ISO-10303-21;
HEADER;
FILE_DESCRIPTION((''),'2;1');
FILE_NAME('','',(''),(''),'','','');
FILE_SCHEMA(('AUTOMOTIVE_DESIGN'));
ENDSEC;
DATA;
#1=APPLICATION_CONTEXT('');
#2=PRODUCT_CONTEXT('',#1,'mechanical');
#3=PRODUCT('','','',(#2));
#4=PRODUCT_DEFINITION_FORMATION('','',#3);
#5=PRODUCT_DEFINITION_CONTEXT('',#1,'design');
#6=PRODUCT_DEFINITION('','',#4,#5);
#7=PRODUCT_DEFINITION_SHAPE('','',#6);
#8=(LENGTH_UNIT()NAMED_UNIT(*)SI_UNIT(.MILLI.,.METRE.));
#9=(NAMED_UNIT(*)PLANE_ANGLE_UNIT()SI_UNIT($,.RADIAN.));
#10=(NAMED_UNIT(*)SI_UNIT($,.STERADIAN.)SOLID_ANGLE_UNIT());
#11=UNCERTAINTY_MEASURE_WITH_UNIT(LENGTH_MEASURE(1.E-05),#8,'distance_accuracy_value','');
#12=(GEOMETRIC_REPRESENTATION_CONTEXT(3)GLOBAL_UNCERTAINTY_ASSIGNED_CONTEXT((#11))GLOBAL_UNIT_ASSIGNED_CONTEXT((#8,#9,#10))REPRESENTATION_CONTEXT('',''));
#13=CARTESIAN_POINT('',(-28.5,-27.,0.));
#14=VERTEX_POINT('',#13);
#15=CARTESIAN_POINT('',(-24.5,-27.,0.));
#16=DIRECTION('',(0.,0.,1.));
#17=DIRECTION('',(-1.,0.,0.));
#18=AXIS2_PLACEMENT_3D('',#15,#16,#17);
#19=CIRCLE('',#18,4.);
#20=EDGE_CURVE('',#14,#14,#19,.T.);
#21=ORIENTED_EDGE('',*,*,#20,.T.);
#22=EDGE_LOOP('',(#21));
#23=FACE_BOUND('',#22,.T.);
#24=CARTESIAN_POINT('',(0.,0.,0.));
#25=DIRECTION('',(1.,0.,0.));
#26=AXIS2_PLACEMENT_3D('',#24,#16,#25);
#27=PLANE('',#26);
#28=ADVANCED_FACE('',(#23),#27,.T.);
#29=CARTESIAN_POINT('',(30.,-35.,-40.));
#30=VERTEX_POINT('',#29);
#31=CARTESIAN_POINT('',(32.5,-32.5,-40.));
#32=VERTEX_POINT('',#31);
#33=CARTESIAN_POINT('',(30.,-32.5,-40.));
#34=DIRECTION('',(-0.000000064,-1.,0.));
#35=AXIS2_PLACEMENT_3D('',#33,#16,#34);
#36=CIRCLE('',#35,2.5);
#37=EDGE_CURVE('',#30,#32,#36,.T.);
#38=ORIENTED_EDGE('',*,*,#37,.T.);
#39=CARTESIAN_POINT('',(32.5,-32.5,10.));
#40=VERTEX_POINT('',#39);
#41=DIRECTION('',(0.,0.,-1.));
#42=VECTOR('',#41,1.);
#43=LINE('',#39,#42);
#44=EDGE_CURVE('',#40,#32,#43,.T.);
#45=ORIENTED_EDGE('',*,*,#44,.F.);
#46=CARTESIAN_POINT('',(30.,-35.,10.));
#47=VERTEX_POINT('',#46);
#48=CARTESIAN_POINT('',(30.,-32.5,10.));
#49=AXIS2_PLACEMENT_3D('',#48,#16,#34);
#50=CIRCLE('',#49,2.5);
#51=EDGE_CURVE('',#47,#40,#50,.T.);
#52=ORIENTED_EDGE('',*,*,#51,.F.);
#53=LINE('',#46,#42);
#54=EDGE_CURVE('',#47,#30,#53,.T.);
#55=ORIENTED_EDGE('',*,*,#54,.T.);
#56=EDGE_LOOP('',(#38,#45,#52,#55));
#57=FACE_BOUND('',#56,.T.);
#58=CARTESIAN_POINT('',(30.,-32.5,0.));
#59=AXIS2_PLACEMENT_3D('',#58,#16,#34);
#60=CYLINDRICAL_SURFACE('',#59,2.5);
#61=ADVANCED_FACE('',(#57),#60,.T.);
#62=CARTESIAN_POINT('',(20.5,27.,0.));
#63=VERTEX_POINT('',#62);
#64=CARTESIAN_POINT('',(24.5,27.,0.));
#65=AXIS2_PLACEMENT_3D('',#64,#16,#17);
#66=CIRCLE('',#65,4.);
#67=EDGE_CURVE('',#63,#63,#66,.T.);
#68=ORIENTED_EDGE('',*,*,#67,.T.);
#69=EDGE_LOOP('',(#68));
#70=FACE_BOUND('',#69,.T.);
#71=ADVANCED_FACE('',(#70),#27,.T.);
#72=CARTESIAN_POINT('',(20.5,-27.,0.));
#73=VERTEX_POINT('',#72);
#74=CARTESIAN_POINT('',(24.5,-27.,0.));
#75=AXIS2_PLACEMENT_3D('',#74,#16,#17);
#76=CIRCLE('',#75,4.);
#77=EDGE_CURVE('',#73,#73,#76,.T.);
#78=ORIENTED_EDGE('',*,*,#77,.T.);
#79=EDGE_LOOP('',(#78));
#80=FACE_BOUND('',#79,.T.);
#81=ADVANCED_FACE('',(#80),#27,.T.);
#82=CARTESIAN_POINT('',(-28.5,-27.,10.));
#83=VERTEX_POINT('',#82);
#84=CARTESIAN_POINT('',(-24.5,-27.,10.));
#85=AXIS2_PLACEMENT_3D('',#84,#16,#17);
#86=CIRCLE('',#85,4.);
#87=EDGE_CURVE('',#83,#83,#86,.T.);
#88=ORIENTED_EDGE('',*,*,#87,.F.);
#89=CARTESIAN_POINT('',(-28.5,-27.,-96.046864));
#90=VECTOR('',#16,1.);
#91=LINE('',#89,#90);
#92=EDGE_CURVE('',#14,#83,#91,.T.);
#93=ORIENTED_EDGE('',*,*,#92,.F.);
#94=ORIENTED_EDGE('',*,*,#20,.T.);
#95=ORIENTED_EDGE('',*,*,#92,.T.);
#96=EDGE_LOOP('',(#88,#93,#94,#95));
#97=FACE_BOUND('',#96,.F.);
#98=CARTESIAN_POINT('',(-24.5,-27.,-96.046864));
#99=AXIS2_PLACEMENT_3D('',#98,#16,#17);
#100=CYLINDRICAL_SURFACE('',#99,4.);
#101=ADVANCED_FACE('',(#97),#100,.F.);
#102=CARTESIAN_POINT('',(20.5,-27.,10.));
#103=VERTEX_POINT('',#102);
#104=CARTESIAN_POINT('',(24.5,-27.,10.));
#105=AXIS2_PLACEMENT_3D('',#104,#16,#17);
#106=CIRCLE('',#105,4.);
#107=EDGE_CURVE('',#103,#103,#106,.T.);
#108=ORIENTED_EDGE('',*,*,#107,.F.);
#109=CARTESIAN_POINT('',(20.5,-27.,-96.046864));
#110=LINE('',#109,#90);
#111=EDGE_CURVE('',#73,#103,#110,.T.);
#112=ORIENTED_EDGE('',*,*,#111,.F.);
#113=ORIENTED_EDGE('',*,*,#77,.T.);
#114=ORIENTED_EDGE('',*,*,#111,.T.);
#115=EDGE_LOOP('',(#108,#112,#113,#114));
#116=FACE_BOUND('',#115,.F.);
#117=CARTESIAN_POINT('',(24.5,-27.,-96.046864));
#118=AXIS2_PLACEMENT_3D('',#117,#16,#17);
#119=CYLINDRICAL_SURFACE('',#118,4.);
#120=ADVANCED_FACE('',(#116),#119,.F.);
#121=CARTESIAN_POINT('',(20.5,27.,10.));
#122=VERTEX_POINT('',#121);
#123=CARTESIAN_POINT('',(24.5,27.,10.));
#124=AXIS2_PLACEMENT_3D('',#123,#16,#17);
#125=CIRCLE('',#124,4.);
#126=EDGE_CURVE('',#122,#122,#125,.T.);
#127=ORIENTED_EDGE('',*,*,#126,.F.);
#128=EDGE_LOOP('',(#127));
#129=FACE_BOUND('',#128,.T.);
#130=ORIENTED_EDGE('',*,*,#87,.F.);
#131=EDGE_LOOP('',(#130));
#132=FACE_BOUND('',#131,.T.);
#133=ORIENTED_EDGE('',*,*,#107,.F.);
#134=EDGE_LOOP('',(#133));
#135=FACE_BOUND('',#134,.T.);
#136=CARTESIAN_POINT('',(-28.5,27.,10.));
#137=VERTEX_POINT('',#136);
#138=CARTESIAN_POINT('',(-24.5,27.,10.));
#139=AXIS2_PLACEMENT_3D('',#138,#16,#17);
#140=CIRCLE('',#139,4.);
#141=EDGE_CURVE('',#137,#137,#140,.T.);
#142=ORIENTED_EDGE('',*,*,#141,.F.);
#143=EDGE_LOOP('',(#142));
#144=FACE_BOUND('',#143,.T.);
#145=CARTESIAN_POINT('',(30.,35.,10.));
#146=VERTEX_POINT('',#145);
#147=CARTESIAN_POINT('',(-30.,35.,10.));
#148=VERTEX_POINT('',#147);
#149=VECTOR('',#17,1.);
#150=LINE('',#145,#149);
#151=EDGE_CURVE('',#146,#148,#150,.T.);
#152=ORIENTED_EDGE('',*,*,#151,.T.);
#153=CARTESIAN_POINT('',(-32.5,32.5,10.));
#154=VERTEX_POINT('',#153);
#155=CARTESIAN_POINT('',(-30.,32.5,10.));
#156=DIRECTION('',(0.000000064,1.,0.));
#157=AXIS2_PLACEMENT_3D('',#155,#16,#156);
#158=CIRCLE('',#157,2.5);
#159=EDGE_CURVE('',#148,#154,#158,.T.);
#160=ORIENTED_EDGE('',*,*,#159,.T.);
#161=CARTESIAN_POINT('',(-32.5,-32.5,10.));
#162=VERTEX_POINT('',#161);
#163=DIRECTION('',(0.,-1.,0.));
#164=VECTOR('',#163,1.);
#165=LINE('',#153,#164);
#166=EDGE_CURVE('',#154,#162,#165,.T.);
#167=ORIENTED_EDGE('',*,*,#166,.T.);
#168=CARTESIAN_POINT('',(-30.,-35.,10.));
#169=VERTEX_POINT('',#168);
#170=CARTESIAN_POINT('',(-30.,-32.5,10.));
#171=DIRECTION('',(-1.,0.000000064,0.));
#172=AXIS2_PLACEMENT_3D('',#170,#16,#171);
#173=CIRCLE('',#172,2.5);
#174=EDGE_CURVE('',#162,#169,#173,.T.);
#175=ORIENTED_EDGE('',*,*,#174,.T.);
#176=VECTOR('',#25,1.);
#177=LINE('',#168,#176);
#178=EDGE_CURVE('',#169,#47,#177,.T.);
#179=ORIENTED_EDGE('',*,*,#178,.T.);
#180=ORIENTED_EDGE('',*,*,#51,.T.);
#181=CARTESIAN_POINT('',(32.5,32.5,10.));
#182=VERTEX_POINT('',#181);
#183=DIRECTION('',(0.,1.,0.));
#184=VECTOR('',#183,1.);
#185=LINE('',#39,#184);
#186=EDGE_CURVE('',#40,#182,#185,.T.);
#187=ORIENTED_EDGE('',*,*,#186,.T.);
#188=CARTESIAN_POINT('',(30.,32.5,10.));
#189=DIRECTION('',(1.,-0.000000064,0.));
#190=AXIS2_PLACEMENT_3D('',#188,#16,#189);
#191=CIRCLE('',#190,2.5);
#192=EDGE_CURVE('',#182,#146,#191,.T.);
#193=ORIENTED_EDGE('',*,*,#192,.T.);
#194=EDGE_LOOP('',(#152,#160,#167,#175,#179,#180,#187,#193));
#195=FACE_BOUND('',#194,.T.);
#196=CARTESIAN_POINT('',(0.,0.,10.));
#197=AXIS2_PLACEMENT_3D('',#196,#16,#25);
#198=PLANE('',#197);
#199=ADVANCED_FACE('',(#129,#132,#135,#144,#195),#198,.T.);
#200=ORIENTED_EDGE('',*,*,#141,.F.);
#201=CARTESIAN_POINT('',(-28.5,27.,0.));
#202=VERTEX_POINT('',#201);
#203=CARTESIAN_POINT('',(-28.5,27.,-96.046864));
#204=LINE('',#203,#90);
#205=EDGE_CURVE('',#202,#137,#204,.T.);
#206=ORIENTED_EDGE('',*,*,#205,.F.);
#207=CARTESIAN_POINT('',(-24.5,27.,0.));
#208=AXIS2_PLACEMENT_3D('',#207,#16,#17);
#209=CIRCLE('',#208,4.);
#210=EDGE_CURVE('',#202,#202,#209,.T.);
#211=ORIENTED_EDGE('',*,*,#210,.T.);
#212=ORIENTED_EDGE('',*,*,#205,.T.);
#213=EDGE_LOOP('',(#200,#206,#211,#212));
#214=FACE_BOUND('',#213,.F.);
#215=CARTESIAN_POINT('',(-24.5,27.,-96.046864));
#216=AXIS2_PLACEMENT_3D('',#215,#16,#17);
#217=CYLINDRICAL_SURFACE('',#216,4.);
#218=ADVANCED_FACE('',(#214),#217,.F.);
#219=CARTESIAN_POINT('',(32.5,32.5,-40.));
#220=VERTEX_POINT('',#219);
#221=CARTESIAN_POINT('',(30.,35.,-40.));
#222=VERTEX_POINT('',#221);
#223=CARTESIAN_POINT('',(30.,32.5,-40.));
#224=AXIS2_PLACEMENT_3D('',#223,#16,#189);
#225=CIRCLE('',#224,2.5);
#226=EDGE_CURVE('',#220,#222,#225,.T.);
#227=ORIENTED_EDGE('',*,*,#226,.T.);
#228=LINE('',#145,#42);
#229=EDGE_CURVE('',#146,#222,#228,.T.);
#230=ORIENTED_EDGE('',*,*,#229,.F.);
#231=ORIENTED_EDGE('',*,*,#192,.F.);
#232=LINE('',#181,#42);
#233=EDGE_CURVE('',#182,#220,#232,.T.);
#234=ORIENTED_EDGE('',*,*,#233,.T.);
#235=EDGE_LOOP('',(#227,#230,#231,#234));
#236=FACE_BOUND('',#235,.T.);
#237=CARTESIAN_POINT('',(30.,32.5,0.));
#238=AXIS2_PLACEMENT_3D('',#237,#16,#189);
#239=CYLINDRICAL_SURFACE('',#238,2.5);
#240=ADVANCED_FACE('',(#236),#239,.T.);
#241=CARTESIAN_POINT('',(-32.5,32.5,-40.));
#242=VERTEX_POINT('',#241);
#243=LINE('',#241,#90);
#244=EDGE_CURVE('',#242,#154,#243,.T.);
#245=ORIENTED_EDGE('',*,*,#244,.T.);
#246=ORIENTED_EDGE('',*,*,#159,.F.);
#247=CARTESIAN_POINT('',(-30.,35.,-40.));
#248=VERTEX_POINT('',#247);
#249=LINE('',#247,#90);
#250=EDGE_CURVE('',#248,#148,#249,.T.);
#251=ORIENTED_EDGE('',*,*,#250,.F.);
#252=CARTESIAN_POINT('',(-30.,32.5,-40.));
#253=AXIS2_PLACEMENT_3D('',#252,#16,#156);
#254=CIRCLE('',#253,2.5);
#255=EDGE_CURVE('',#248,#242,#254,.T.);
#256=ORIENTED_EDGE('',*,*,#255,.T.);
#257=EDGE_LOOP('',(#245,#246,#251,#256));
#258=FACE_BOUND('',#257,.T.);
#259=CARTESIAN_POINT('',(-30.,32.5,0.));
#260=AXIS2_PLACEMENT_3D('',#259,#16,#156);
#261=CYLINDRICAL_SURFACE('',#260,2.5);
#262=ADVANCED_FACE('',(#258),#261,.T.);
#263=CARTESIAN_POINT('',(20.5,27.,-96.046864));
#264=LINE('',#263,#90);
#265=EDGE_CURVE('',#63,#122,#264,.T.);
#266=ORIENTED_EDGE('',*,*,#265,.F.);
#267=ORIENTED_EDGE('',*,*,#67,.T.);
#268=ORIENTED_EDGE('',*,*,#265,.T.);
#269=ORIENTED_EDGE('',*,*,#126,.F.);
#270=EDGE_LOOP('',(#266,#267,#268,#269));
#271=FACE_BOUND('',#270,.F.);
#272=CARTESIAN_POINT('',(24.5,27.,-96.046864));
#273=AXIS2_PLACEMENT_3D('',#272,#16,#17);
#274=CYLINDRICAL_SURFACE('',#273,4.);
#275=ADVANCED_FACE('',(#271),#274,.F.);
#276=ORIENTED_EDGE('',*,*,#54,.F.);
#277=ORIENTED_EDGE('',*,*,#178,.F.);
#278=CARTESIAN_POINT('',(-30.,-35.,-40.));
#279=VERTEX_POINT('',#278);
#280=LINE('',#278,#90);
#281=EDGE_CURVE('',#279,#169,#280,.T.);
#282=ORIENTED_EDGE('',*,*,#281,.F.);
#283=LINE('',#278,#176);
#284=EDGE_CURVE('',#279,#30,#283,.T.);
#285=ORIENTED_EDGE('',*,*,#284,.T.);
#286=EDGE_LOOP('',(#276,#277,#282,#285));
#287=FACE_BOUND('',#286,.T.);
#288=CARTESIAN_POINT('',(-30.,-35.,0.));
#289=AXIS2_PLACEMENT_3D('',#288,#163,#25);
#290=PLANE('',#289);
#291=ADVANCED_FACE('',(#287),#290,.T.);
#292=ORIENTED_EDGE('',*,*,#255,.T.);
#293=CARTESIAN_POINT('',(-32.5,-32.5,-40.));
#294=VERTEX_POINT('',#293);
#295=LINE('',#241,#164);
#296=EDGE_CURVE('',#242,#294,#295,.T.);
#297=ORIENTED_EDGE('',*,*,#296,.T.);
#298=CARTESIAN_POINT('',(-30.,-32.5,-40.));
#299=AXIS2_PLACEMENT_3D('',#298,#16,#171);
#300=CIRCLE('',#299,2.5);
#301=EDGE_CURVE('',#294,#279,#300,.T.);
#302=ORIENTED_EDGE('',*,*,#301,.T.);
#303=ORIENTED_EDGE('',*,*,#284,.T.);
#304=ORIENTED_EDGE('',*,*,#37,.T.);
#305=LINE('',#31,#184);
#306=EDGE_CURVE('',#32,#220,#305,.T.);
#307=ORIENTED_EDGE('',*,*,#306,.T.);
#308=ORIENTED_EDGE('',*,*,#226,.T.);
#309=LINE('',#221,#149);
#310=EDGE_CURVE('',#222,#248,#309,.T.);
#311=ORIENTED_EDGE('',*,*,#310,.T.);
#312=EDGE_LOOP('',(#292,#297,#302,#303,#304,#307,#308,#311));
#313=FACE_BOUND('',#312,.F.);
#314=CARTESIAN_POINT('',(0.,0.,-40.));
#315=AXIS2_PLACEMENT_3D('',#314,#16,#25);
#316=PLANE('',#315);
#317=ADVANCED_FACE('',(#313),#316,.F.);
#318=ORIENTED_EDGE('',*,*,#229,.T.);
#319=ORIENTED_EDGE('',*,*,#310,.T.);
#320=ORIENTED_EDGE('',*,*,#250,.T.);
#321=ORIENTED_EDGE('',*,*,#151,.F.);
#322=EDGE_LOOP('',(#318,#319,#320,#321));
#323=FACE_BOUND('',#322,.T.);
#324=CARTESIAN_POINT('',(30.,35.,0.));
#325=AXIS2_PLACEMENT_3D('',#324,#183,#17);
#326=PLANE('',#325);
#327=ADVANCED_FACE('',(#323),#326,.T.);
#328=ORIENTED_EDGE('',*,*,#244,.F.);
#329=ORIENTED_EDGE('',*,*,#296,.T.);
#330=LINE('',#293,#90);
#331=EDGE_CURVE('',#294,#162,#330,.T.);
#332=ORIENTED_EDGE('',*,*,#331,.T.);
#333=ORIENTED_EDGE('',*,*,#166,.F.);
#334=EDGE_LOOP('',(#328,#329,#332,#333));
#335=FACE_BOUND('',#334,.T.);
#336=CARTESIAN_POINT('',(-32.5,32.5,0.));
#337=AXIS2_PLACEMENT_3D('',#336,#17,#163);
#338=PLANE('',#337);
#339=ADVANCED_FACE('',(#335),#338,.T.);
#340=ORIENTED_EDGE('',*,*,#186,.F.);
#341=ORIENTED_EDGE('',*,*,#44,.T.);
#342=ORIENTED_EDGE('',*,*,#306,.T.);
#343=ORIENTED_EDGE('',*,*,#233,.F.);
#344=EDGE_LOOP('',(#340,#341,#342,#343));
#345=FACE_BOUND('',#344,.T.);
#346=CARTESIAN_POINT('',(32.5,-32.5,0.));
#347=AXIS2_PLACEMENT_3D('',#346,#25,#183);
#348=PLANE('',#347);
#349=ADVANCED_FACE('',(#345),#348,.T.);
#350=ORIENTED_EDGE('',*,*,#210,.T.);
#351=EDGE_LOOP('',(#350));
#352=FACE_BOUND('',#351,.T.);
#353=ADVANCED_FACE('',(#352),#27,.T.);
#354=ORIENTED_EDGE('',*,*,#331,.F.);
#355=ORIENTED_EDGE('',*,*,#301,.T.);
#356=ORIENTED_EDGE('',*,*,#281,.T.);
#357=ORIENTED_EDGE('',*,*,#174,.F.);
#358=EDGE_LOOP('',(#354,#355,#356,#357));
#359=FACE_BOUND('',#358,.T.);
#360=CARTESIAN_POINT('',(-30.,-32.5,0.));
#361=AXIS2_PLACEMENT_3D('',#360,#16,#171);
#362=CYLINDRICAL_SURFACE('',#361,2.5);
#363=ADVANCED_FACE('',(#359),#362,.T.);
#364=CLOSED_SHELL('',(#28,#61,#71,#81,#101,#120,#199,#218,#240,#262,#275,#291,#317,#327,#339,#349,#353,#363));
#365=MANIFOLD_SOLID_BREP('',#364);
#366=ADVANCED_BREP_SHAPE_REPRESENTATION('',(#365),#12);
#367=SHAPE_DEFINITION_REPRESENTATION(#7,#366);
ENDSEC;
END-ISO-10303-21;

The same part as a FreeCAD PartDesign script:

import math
import FreeCAD as App
import Part
import Sketcher
from FreeCAD import Vector
Q = App.Units.Quantity

doc = App.newDocument("Part")
params = doc.addObject("Spreadsheet::Sheet", "Params")
for row, (alias, value) in enumerate([
    ("sketch1_radius", "2.5 mm"),
    ("sketch1_width", "60 mm"),
    ("sketch1_height", "65 mm"),
    ("pad1_length", "10 mm"),
    ("sketch2_diameter", "8 mm"),
    ("hole_diameter", "8 mm"),
    ("sketch3_diameter", "8 mm"),
    ("hole2_diameter", "8 mm"),
    ("sketch4_diameter", "8 mm"),
    ("hole3_diameter", "8 mm"),
    ("sketch5_diameter", "8 mm"),
    ("hole4_diameter", "8 mm"),
    ("sketch6_radius", "2.5 mm"),
    ("sketch6_width", "60 mm"),
    ("sketch6_height", "65 mm"),
    ("pad2_length", "40 mm"),
], start=1):
    params.set(f"A{row}", alias)
    params.set(f"B{row}", "=" + value)
    params.setAlias(f"B{row}", alias)

body = doc.addObject("PartDesign::Body", "Body")

sketch1 = body.newObject("Sketcher::SketchObject", "Sketch")
sketch1.AttachmentSupport = (doc.getObject("XY_Plane"), [""])
sketch1.MapMode = "FlatFace"
sketch1.addGeometry(Part.LineSegment(Vector(30, 35, 0), Vector(-30, 35, 0)), False)
sketch1.addGeometry(Part.ArcOfCircle(Part.Circle(Vector(-30, 32.5, 0), Vector(0, 0, 1), 2.5), math.radians(90), math.radians(180)), False)
sketch1.addGeometry(Part.LineSegment(Vector(-32.5, 32.5, 0), Vector(-32.5, -32.5, 0)), False)
sketch1.addGeometry(Part.ArcOfCircle(Part.Circle(Vector(-30, -32.5, 0), Vector(0, 0, 1), 2.5), math.radians(180), math.radians(270)), False)
sketch1.addGeometry(Part.LineSegment(Vector(-30, -35, 0), Vector(30, -35, 0)), False)
sketch1.addGeometry(Part.ArcOfCircle(Part.Circle(Vector(30, -32.5, 0), Vector(0, 0, 1), 2.5), math.radians(-90), math.radians(0)), False)
sketch1.addGeometry(Part.LineSegment(Vector(32.5, -32.5, 0), Vector(32.5, 32.5, 0)), False)
sketch1.addGeometry(Part.ArcOfCircle(Part.Circle(Vector(30, 32.5, 0), Vector(0, 0, 1), 2.5), math.radians(0), math.radians(90)), False)
sketch1.addConstraint(Sketcher.Constraint("Tangent", 0, 2, 1, 1))
sketch1.addConstraint(Sketcher.Constraint("Tangent", 1, 2, 2, 1))
sketch1.addConstraint(Sketcher.Constraint("Tangent", 2, 2, 3, 1))
sketch1.addConstraint(Sketcher.Constraint("Tangent", 3, 2, 4, 1))
sketch1.addConstraint(Sketcher.Constraint("Tangent", 4, 2, 5, 1))
sketch1.addConstraint(Sketcher.Constraint("Tangent", 5, 2, 6, 1))
sketch1.addConstraint(Sketcher.Constraint("Tangent", 6, 2, 7, 1))
sketch1.addConstraint(Sketcher.Constraint("Tangent", 7, 2, 0, 1))
sketch1.addConstraint(Sketcher.Constraint("Horizontal", 0))
sketch1.addConstraint(Sketcher.Constraint("Vertical", 2))
sketch1.addConstraint(Sketcher.Constraint("Horizontal", 4))
sketch1.addConstraint(Sketcher.Constraint("Vertical", 6))
sketch1.addConstraint(Sketcher.Constraint("Equal", 1, 3))
sketch1.addConstraint(Sketcher.Constraint("Equal", 3, 5))
sketch1.addConstraint(Sketcher.Constraint("Equal", 5, 7))
sketch1.addConstraint(Sketcher.Constraint("Symmetric", 1, 3, 5, 3, -1, 1))
sketch1.addConstraint(Sketcher.Constraint("Radius", 1, Q("2.5 mm")))
sketch1.addConstraint(Sketcher.Constraint("DistanceX", 0, 2, 0, 1, Q("60 mm")))
sketch1.addConstraint(Sketcher.Constraint("DistanceY", 2, 2, 2, 1, Q("65 mm")))
sketch1.setExpression("Constraints[16]", "Params.sketch1_radius")
sketch1.setExpression("Constraints[17]", "Params.sketch1_width")
sketch1.setExpression("Constraints[18]", "Params.sketch1_height")
pad1 = body.newObject("PartDesign::Pad", "Pad")
pad1.Profile = sketch1
pad1.setExpression("Length", "Params.pad1_length")

sketch2 = body.newObject("Sketcher::SketchObject", "Sketch001")
sketch2.AttachmentSupport = (doc.getObject("XY_Plane"), [""])
sketch2.MapMode = "FlatFace"
sketch2.addGeometry(Part.Circle(Vector(24.5, -27, 0), Vector(0, 0, 1), 4), False)
sketch2.addConstraint(Sketcher.Constraint("Diameter", 0, Q("8 mm")))
sketch2.addConstraint(Sketcher.Constraint("DistanceY", 0, 3, -1, 1, Q("27 mm")))
sketch2.addConstraint(Sketcher.Constraint("DistanceX", -1, 1, 0, 3, Q("24.5 mm")))
sketch2.setExpression("Constraints[0]", "Params.sketch2_diameter")
doc.recompute()
hole = body.newObject("PartDesign::Hole", "Hole")
hole.Profile = sketch2
hole.ThreadType = "None"
hole.setExpression("Diameter", "Params.hole_diameter")
hole.DepthType = "ThroughAll"
hole.Reversed = True

sketch3 = body.newObject("Sketcher::SketchObject", "Sketch002")
sketch3.AttachmentSupport = (doc.getObject("XY_Plane"), [""])
sketch3.MapMode = "FlatFace"
sketch3.addGeometry(Part.Circle(Vector(-24.5, -27, 0), Vector(0, 0, 1), 4), False)
sketch3.addConstraint(Sketcher.Constraint("Diameter", 0, Q("8 mm")))
sketch3.addConstraint(Sketcher.Constraint("DistanceY", 0, 3, -1, 1, Q("27 mm")))
sketch3.addConstraint(Sketcher.Constraint("DistanceX", 0, 3, -1, 1, Q("24.5 mm")))
sketch3.setExpression("Constraints[0]", "Params.sketch3_diameter")
doc.recompute()
hole2 = body.newObject("PartDesign::Hole", "Hole001")
hole2.Profile = sketch3
hole2.ThreadType = "None"
hole2.setExpression("Diameter", "Params.hole2_diameter")
hole2.DepthType = "ThroughAll"
hole2.Reversed = True

sketch4 = body.newObject("Sketcher::SketchObject", "Sketch003")
sketch4.AttachmentSupport = (doc.getObject("XY_Plane"), [""])
sketch4.MapMode = "FlatFace"
sketch4.addGeometry(Part.Circle(Vector(24.5, 27, 0), Vector(0, 0, 1), 4), False)
sketch4.addConstraint(Sketcher.Constraint("Diameter", 0, Q("8 mm")))
sketch4.addConstraint(Sketcher.Constraint("DistanceY", -1, 1, 0, 3, Q("27 mm")))
sketch4.addConstraint(Sketcher.Constraint("DistanceX", -1, 1, 0, 3, Q("24.5 mm")))
sketch4.setExpression("Constraints[0]", "Params.sketch4_diameter")
doc.recompute()
hole3 = body.newObject("PartDesign::Hole", "Hole002")
hole3.Profile = sketch4
hole3.ThreadType = "None"
hole3.setExpression("Diameter", "Params.hole3_diameter")
hole3.DepthType = "ThroughAll"
hole3.Reversed = True

sketch5 = body.newObject("Sketcher::SketchObject", "Sketch004")
sketch5.AttachmentSupport = (doc.getObject("XY_Plane"), [""])
sketch5.MapMode = "FlatFace"
sketch5.addGeometry(Part.Circle(Vector(-24.5, 27, 0), Vector(0, 0, 1), 4), False)
sketch5.addConstraint(Sketcher.Constraint("Diameter", 0, Q("8 mm")))
sketch5.addConstraint(Sketcher.Constraint("DistanceY", -1, 1, 0, 3, Q("27 mm")))
sketch5.addConstraint(Sketcher.Constraint("DistanceX", 0, 3, -1, 1, Q("24.5 mm")))
sketch5.setExpression("Constraints[0]", "Params.sketch5_diameter")
doc.recompute()
hole4 = body.newObject("PartDesign::Hole", "Hole003")
hole4.Profile = sketch5
hole4.ThreadType = "None"
hole4.setExpression("Diameter", "Params.hole4_diameter")
hole4.DepthType = "ThroughAll"
hole4.Reversed = True

sketch6 = body.newObject("Sketcher::SketchObject", "Sketch005")
sketch6.AttachmentSupport = (doc.getObject("XY_Plane"), [""])
sketch6.MapMode = "FlatFace"
sketch6.addGeometry(Part.LineSegment(Vector(30, 35, 0), Vector(-30, 35, 0)), False)
sketch6.addGeometry(Part.ArcOfCircle(Part.Circle(Vector(-30, 32.5, 0), Vector(0, 0, 1), 2.5), math.radians(90), math.radians(180)), False)
sketch6.addGeometry(Part.LineSegment(Vector(-32.5, 32.5, 0), Vector(-32.5, -32.5, 0)), False)
sketch6.addGeometry(Part.ArcOfCircle(Part.Circle(Vector(-30, -32.5, 0), Vector(0, 0, 1), 2.5), math.radians(180), math.radians(270)), False)
sketch6.addGeometry(Part.LineSegment(Vector(-30, -35, 0), Vector(30, -35, 0)), False)
sketch6.addGeometry(Part.ArcOfCircle(Part.Circle(Vector(30, -32.5, 0), Vector(0, 0, 1), 2.5), math.radians(-90), math.radians(0)), False)
sketch6.addGeometry(Part.LineSegment(Vector(32.5, -32.5, 0), Vector(32.5, 32.5, 0)), False)
sketch6.addGeometry(Part.ArcOfCircle(Part.Circle(Vector(30, 32.5, 0), Vector(0, 0, 1), 2.5), math.radians(0), math.radians(90)), False)
sketch6.addConstraint(Sketcher.Constraint("Tangent", 0, 2, 1, 1))
sketch6.addConstraint(Sketcher.Constraint("Tangent", 1, 2, 2, 1))
sketch6.addConstraint(Sketcher.Constraint("Tangent", 2, 2, 3, 1))
sketch6.addConstraint(Sketcher.Constraint("Tangent", 3, 2, 4, 1))
sketch6.addConstraint(Sketcher.Constraint("Tangent", 4, 2, 5, 1))
sketch6.addConstraint(Sketcher.Constraint("Tangent", 5, 2, 6, 1))
sketch6.addConstraint(Sketcher.Constraint("Tangent", 6, 2, 7, 1))
sketch6.addConstraint(Sketcher.Constraint("Tangent", 7, 2, 0, 1))
sketch6.addConstraint(Sketcher.Constraint("Horizontal", 0))
sketch6.addConstraint(Sketcher.Constraint("Vertical", 2))
sketch6.addConstraint(Sketcher.Constraint("Horizontal", 4))
sketch6.addConstraint(Sketcher.Constraint("Vertical", 6))
sketch6.addConstraint(Sketcher.Constraint("Equal", 1, 3))
sketch6.addConstraint(Sketcher.Constraint("Equal", 3, 5))
sketch6.addConstraint(Sketcher.Constraint("Equal", 5, 7))
sketch6.addConstraint(Sketcher.Constraint("Symmetric", 1, 3, 5, 3, -1, 1))
sketch6.addConstraint(Sketcher.Constraint("Radius", 1, Q("2.5 mm")))
sketch6.addConstraint(Sketcher.Constraint("DistanceX", 0, 2, 0, 1, Q("60 mm")))
sketch6.addConstraint(Sketcher.Constraint("DistanceY", 2, 2, 2, 1, Q("65 mm")))
sketch6.setExpression("Constraints[16]", "Params.sketch6_radius")
sketch6.setExpression("Constraints[17]", "Params.sketch6_width")
sketch6.setExpression("Constraints[18]", "Params.sketch6_height")
pad2 = body.newObject("PartDesign::Pad", "Pad001")
pad2.Profile = sketch6
pad2.setExpression("Length", "Params.pad2_length")
pad2.Reversed = True

doc.recompute()
